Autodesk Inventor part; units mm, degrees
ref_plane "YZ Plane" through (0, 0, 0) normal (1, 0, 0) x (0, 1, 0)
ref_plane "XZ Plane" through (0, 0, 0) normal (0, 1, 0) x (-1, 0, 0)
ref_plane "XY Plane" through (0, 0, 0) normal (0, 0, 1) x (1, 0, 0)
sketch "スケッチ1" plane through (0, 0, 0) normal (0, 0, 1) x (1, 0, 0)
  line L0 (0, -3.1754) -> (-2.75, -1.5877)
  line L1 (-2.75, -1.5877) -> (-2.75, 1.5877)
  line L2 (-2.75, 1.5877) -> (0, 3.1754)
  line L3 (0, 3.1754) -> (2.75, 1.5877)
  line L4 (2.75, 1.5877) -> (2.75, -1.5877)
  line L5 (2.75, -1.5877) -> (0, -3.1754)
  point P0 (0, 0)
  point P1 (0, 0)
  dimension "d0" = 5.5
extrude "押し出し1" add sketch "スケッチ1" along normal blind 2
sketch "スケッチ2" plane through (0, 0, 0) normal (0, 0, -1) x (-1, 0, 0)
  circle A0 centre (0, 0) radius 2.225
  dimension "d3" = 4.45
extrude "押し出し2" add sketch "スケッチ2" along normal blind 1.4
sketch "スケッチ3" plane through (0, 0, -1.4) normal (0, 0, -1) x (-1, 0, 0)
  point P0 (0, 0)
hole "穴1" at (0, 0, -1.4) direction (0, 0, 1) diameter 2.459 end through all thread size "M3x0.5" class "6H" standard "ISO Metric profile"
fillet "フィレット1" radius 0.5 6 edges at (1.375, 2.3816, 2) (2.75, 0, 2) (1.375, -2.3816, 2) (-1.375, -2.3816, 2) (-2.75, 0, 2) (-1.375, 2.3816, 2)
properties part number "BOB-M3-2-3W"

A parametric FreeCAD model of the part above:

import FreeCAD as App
import Part
import Sketcher
from FreeCAD import Vector
Q = App.Units.Quantity


def edges_at(feature, points):
    """Names of the edges that pass closest to the given points."""
    edges = feature.Shape.Edges
    near = lambda p: min(range(len(edges)), key=lambda i: edges[i].distToShape(Part.Vertex(*p))[0])
    return sorted({f"Edge{near(p) + 1}" for p in points})


def add_polygon(sketch, points):
    """Adds a closed chain of lines whose ends are joined by coincident constraints."""
    first, n = sketch.GeometryCount, len(points)
    for a, b in zip(points, points[1:] + points[:1]):
        sketch.addGeometry(Part.LineSegment(App.Vector(*a, 0), App.Vector(*b, 0)), False)
    for i in range(n):
        sketch.addConstraint(Sketcher.Constraint("Coincident", first + i, 2, first + (i + 1) % n, 1))

doc = App.newDocument("Part")
body = doc.addObject("PartDesign::Body", "Body")

# Sketch on XY plane
sketch1 = doc.addObject("Sketcher::SketchObject", "Sketch")
body.addObject(sketch1)
sketch1.AttachmentSupport = (doc.XY_Plane, [""])
sketch1.MapMode = "FlatFace"
add_polygon(sketch1, [(-2.8, -1.6), (0, -3.2), (2.8, -1.6), (2.8, 1.6), (0, 3.2), (-2.8, 1.6)])  # lines 0-5
sketch1.addConstraint([
    Sketcher.Constraint("Vertical", 2),
    Sketcher.Constraint("Vertical", 5),
    Sketcher.Constraint("Symmetric", 0, 2, 3, 2, -1, 1),
    Sketcher.Constraint("Symmetric", 1, 2, 4, 2, -1, 1),
    Sketcher.Constraint("PointOnObject", 0, 2, -2),
    Sketcher.Constraint("Parallel", 0, 3),
    Sketcher.Constraint("Horizontal", 2, 2, 4, 2),
    Sketcher.Constraint("DistanceX", 4, 2, 2, 2, Q("5.5 mm")),
    Sketcher.Constraint("Angle", 0, Q("-29.9998 deg")),
    Sketcher.Constraint("DistanceY", 2, 1, 2, 2, Q("3.1754 mm")),
])
pad1 = doc.addObject("PartDesign::Pad", "Pad")
body.addObject(pad1)
pad1.Profile = sketch1
pad1.Length = 2

# Sketch on XY plane
sketch2 = doc.addObject("Sketcher::SketchObject", "Sketch001")
body.addObject(sketch2)
sketch2.AttachmentSupport = (doc.XY_Plane, [""])
sketch2.MapMode = "FlatFace"
sketch2.addGeometry(Part.Circle(Vector(0, 0, 0), Vector(0, 0, 1), 2.2), False)
sketch2.addConstraint([
    Sketcher.Constraint("Coincident", 0, 3, -1, 1),
    Sketcher.Constraint("Diameter", 0, Q("4.45 mm")),
])
pad2 = doc.addObject("PartDesign::Pad", "Pad001")
body.addObject(pad2)
pad2.Profile = sketch2
pad2.Length = 1.4
pad2.Reversed = True

# Sketch on XY plane
sketch3 = doc.addObject("Sketcher::SketchObject", "Sketch002")
body.addObject(sketch3)
sketch3.AttachmentSupport = (doc.XY_Plane, [""])
sketch3.MapMode = "FlatFace"
sketch3.AttachmentOffset = App.Placement(Vector(0, 0, -1.4), App.Rotation())
sketch3.addGeometry(Part.Circle(Vector(0, 0, 0), Vector(0, 0, 1), 1.2), False)
sketch3.addConstraint([
    Sketcher.Constraint("Coincident", 0, 3, -1, 1),
    Sketcher.Constraint("Diameter", 0, Q("2.459 mm")),
])
doc.recompute()
hole = doc.addObject("PartDesign::Hole", "Hole")
body.addObject(hole)
hole.Profile = sketch3
hole.ThreadType = "None"
hole.Diameter = 2.459
hole.DepthType = "ThroughAll"
hole.Reversed = True
doc.recompute()

fillet = doc.addObject("PartDesign::Fillet", "Fillet")
body.addObject(fillet)
fillet.Base = (hole, edges_at(hole, [
    (1.375, 2.382, 2),
    (2.75, 0, 2),
    (1.375, -2.382, 2),
    (-1.375, -2.382, 2),
    (-2.75, 0, 2),
    (-1.375, 2.382, 2),
]))
fillet.Radius = 0.5

doc.recompute()
